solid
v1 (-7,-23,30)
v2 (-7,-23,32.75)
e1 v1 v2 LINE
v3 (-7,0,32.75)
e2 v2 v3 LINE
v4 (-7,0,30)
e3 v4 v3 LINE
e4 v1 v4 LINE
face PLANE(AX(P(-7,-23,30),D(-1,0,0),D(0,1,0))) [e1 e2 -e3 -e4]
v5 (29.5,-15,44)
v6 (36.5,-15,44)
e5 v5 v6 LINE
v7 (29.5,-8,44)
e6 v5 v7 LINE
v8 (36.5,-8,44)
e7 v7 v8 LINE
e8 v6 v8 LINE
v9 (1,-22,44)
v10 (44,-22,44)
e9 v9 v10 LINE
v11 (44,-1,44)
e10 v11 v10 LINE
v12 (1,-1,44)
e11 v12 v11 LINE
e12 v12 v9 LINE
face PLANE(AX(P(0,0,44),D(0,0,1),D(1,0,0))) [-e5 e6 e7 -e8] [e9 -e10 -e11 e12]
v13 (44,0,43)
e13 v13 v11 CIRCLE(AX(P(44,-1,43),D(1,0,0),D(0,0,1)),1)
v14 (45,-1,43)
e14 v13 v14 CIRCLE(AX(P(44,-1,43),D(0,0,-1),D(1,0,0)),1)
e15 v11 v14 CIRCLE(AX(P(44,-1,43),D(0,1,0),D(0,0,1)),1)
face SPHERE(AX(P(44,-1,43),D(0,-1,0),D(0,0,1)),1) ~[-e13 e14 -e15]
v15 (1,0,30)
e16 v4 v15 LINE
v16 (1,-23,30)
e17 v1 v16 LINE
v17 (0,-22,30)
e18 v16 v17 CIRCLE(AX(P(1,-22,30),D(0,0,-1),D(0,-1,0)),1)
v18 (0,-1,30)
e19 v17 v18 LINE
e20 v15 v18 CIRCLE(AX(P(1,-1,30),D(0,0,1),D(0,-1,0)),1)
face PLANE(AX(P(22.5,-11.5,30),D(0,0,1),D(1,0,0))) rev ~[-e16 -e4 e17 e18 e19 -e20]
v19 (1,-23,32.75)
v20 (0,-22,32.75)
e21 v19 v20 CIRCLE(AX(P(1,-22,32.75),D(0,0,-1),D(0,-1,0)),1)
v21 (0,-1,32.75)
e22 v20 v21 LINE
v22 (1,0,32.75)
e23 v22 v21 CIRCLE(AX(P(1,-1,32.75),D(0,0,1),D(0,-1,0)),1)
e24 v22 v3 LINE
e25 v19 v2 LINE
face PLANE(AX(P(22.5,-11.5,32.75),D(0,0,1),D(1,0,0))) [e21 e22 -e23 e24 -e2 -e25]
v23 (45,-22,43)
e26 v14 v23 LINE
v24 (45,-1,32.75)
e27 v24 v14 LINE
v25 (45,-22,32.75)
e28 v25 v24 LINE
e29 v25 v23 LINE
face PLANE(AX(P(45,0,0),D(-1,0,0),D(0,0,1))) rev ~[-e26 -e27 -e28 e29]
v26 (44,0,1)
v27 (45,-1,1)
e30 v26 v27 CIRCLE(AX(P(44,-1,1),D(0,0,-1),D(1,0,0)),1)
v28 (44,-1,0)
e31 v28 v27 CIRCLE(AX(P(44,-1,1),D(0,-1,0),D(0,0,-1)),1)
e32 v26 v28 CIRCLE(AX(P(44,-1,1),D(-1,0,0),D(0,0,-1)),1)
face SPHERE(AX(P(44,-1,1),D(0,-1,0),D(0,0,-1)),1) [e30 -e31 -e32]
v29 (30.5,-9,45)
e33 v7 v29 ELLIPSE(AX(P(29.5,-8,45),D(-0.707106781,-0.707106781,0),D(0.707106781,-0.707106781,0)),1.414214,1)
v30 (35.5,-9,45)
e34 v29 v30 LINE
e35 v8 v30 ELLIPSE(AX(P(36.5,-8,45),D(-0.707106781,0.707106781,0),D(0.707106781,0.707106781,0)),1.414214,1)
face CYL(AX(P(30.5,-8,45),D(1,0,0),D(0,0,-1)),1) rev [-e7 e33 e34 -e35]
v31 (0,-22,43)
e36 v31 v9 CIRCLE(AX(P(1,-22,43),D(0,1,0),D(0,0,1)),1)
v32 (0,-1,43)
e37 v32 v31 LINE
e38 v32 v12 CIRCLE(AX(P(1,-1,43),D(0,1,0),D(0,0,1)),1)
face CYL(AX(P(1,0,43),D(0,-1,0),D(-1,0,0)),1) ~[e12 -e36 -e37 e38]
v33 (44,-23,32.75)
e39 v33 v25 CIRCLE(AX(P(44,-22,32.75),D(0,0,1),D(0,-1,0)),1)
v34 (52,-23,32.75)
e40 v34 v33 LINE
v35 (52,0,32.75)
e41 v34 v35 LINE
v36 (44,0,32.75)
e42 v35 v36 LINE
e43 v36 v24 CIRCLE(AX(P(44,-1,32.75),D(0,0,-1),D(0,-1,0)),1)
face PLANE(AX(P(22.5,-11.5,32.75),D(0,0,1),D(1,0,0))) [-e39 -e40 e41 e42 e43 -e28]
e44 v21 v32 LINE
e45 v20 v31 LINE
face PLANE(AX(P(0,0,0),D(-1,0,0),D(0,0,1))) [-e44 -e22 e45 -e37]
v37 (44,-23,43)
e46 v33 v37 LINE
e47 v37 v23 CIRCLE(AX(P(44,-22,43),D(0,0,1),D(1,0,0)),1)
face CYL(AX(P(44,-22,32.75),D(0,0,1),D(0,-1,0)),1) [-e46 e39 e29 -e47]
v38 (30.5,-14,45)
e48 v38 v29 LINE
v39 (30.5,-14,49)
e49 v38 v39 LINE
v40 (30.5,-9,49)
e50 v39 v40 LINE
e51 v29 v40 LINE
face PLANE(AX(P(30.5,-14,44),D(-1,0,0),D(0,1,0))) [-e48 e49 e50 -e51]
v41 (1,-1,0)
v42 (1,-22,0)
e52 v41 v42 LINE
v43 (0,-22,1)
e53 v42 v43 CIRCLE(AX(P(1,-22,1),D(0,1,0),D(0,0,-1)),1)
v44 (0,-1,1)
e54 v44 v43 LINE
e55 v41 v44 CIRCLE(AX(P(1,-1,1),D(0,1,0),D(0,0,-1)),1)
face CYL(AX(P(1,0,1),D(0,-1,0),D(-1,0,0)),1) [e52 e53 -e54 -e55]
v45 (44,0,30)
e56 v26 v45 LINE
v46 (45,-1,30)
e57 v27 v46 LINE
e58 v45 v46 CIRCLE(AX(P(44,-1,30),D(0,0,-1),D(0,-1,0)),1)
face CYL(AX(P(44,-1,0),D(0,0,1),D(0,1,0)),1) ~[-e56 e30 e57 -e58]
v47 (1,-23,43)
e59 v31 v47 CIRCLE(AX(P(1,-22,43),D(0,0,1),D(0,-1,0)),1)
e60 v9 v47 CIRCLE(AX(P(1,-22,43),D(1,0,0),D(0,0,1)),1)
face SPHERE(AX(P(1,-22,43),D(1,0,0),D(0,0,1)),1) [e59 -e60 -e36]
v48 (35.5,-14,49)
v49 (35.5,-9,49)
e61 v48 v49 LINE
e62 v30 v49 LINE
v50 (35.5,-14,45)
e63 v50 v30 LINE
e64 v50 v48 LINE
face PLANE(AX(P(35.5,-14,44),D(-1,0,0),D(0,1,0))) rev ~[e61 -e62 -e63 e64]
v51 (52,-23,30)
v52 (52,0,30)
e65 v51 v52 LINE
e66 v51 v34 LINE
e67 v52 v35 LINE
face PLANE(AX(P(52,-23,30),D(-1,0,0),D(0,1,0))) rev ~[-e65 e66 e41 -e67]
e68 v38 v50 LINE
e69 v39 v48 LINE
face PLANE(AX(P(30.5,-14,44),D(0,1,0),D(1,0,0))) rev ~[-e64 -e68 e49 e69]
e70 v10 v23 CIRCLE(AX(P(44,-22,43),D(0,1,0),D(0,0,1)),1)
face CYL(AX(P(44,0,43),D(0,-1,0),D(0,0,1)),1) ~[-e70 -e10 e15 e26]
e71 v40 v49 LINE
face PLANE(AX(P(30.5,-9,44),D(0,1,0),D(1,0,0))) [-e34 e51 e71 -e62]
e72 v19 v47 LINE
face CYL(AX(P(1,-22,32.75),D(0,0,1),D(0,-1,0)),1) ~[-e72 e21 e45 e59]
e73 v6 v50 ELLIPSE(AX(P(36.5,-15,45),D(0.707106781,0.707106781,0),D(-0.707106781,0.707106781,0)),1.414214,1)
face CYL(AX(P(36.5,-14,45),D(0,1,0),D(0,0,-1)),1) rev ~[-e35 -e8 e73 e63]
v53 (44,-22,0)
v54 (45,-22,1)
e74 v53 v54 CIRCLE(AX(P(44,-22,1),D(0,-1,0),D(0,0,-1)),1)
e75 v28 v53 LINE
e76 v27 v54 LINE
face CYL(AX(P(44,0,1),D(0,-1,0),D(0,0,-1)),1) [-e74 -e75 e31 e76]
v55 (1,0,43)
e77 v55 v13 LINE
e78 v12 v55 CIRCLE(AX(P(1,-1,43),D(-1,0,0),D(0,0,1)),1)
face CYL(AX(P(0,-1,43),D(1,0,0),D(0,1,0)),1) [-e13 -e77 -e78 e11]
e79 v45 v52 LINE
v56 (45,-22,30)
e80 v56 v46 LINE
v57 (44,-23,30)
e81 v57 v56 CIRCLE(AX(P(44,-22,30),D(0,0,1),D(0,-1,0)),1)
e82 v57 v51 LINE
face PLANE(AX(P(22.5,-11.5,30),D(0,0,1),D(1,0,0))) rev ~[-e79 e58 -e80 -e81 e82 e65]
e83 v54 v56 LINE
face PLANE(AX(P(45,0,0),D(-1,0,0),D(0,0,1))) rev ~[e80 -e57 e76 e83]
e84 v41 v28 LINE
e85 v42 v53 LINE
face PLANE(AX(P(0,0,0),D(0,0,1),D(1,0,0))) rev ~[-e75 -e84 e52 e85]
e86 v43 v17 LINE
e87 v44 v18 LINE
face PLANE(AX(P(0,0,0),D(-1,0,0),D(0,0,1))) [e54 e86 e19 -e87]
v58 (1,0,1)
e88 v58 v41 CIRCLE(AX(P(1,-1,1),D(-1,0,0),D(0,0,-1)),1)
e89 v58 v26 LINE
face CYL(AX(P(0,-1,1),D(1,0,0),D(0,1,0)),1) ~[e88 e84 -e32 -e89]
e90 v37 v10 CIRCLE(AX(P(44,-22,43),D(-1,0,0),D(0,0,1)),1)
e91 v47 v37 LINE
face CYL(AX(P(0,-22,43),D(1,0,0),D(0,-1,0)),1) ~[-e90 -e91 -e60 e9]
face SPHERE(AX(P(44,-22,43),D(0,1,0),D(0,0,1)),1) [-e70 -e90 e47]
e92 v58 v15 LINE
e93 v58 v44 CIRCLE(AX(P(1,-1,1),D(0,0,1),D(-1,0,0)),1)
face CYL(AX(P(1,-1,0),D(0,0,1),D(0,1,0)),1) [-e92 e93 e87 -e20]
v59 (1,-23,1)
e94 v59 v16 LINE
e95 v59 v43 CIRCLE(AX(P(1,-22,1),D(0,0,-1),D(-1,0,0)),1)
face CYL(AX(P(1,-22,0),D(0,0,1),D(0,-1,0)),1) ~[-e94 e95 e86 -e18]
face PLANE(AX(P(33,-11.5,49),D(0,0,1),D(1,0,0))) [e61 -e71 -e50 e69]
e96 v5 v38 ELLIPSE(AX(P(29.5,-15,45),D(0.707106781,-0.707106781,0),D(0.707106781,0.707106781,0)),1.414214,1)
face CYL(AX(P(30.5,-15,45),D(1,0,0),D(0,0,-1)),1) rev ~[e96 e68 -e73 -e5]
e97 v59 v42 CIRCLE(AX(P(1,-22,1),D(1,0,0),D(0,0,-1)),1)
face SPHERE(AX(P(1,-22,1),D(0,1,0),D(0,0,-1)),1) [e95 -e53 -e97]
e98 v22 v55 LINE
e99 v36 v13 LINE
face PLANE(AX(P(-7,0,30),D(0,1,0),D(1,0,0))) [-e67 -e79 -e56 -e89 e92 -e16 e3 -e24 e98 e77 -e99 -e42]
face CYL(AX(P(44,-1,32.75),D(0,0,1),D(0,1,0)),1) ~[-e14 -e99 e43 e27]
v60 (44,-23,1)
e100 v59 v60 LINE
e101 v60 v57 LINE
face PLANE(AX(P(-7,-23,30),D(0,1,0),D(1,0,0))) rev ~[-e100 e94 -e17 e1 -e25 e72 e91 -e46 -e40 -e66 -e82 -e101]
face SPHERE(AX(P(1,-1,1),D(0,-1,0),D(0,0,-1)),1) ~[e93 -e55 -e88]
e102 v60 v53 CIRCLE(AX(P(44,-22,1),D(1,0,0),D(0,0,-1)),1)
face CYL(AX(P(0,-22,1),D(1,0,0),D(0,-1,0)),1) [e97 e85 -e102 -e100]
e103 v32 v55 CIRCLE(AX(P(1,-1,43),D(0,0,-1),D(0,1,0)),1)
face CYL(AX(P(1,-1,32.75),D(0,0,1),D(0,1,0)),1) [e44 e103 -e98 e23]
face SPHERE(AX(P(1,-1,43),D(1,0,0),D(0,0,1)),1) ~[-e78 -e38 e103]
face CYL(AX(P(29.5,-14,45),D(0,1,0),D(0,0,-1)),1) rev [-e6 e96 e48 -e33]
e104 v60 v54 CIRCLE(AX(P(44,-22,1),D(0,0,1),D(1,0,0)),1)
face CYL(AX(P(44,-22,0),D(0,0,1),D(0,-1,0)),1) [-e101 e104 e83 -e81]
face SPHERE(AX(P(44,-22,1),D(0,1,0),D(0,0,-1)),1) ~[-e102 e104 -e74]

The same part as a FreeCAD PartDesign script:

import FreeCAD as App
import Part
import Sketcher

V = App.Vector


def edges_at(feature, points):
    """Names of the edges that pass closest to the given points."""
    edges = feature.Shape.Edges
    near = lambda p: min(range(len(edges)), key=lambda i: edges[i].distToShape(Part.Vertex(*p))[0])
    return sorted({f"Edge{near(p) + 1}" for p in points})


def add_polygon(sketch, points):
    """Adds a closed chain of lines whose ends are joined by coincident constraints."""
    first, n = sketch.GeometryCount, len(points)
    for a, b in zip(points, points[1:] + points[:1]):
        sketch.addGeometry(Part.LineSegment(App.Vector(*a, 0), App.Vector(*b, 0)), False)
    for i in range(n):
        sketch.addConstraint(Sketcher.Constraint("Coincident", first + i, 2, first + (i + 1) % n, 1))

doc = App.newDocument("Part")
params = doc.addObject("Spreadsheet::Sheet", "Params")
for row, (alias, value) in enumerate([
    ("sketch1_width", "45 mm"),
    ("sketch1_height", "44 mm"),
    ("pad1_length", "23 mm"),
    ("sketch2_width", "5 mm"),
    ("pad2_length", "5 mm"),
    ("sketch3_width", "59 mm"),
    ("sketch3_height", "23 mm"),
    ("pad3_length", "2.75 mm"),
    ("fillet_radius", "1 mm"),
], start=1):
    params.set(f"A{row}", alias)
    params.set(f"B{row}", "=" + value)
    params.setAlias(f"B{row}", alias)

body = doc.addObject("PartDesign::Body", "Body")

# Sketch on XZ plane
sketch1 = doc.addObject("Sketcher::SketchObject", "Sketch")
body.addObject(sketch1)
sketch1.AttachmentSupport = (doc.XZ_Plane, [""])
sketch1.MapMode = "FlatFace"
add_polygon(sketch1, [(0, 44), (0, 0), (45, 0), (45, 44)])  # lines 0-3
sketch1.addConstraint([
    Sketcher.Constraint("Vertical", 0),
    Sketcher.Constraint("Horizontal", 1),
    Sketcher.Constraint("Vertical", 2),
    Sketcher.Constraint("Horizontal", 3),
    Sketcher.Constraint("Coincident", 0, 2, -1, 1),
    Sketcher.Constraint("DistanceX", 1, 1, 1, 2, 45.0),
    Sketcher.Constraint("DistanceY", 0, 2, 0, 1, 44.0),
])
sketch1.setExpression("Constraints[9]", "Params.sketch1_width")
sketch1.setExpression("Constraints[10]", "Params.sketch1_height")
pad1 = doc.addObject("PartDesign::Pad", "Pad")
body.addObject(pad1)
pad1.Profile = sketch1
pad1.setExpression("Length", "Params.pad1_length")

# Sketch on XY plane
sketch2 = doc.addObject("Sketcher::SketchObject", "Sketch001")
body.addObject(sketch2)
sketch2.AttachmentSupport = (doc.XY_Plane, [""])
sketch2.MapMode = "FlatFace"
sketch2.AttachmentOffset = App.Placement(V(0, 0, 44), App.Rotation())
add_polygon(sketch2, [(30, -9), (30, -14), (36, -14), (36, -9)])  # lines 0-3
sketch2.addConstraint([
    Sketcher.Constraint("Vertical", 0),
    Sketcher.Constraint("Horizontal", 1),
    Sketcher.Constraint("Vertical", 2),
    Sketcher.Constraint("Horizontal", 3),
    Sketcher.Constraint("Equal", 3, 0),
    Sketcher.Constraint("DistanceX", 1, 1, 1, 2, 5.0),
    Sketcher.Constraint("DistanceY", 0, 2, -1, 1, 14.0),
    Sketcher.Constraint("DistanceX", -1, 1, 0, 2, 30.5),
])
sketch2.setExpression("Constraints[9]", "Params.sketch2_width")
pad2 = doc.addObject("PartDesign::Pad", "Pad001")
body.addObject(pad2)
pad2.Profile = sketch2
pad2.setExpression("Length", "Params.pad2_length")

# Sketch on XY plane
sketch3 = doc.addObject("Sketcher::SketchObject", "Sketch002")
body.addObject(sketch3)
sketch3.AttachmentSupport = (doc.XY_Plane, [""])
sketch3.MapMode = "FlatFace"
sketch3.AttachmentOffset = App.Placement(V(0, 0, 30), App.Rotation())
add_polygon(sketch3, [(-7, 0), (-7, -23), (52, -23), (52, 0)])  # lines 0-3
sketch3.addConstraint([
    Sketcher.Constraint("Vertical", 0),
    Sketcher.Constraint("Horizontal", 1),
    Sketcher.Constraint("Vertical", 2),
    Sketcher.Constraint("Horizontal", 3),
    Sketcher.Constraint("PointOnObject", 2, 2, -1),
    Sketcher.Constraint("DistanceX", 1, 1, 1, 2, 59.0),
    Sketcher.Constraint("DistanceY", 0, 2, 0, 1, 23.0),
    Sketcher.Constraint("DistanceX", 0, 2, -1, 1, 7.0),
])
sketch3.setExpression("Constraints[9]", "Params.sketch3_width")
sketch3.setExpression("Constraints[10]", "Params.sketch3_height")
pad3 = doc.addObject("PartDesign::Pad", "Pad002")
body.addObject(pad3)
pad3.Profile = sketch3
pad3.setExpression("Length", "Params.pad3_length")
doc.recompute()

fillet = doc.addObject("PartDesign::Fillet", "Fillet")
body.addObject(fillet)
fillet.Base = (pad3, edges_at(pad3, [
    (45, -11.5, 44),
    (22.5, 0, 44),
    (22.5, -23, 44),
    (0, -11.5, 44),
    (33, -9, 44),
    (35.5, -11.5, 44),
    (33, -14, 44),
    (30.5, -11.5, 44),
    (0, -11.5, 0),
    (45, -11.5, 0),
    (22.5, 0, 0),
    (22.5, -23, 0),
    (45, -23, 15),
    (45, 0, 15),
    (0, -23, 15),
    (0, -23, 38.375),
    (45, -23, 38.375),
    (45, 0, 38.375),
    (0, 0, 38.375),
    (0, 0, 15),
]))
fillet.setExpression("Radius", "Params.fillet_radius")

doc.recompute()
